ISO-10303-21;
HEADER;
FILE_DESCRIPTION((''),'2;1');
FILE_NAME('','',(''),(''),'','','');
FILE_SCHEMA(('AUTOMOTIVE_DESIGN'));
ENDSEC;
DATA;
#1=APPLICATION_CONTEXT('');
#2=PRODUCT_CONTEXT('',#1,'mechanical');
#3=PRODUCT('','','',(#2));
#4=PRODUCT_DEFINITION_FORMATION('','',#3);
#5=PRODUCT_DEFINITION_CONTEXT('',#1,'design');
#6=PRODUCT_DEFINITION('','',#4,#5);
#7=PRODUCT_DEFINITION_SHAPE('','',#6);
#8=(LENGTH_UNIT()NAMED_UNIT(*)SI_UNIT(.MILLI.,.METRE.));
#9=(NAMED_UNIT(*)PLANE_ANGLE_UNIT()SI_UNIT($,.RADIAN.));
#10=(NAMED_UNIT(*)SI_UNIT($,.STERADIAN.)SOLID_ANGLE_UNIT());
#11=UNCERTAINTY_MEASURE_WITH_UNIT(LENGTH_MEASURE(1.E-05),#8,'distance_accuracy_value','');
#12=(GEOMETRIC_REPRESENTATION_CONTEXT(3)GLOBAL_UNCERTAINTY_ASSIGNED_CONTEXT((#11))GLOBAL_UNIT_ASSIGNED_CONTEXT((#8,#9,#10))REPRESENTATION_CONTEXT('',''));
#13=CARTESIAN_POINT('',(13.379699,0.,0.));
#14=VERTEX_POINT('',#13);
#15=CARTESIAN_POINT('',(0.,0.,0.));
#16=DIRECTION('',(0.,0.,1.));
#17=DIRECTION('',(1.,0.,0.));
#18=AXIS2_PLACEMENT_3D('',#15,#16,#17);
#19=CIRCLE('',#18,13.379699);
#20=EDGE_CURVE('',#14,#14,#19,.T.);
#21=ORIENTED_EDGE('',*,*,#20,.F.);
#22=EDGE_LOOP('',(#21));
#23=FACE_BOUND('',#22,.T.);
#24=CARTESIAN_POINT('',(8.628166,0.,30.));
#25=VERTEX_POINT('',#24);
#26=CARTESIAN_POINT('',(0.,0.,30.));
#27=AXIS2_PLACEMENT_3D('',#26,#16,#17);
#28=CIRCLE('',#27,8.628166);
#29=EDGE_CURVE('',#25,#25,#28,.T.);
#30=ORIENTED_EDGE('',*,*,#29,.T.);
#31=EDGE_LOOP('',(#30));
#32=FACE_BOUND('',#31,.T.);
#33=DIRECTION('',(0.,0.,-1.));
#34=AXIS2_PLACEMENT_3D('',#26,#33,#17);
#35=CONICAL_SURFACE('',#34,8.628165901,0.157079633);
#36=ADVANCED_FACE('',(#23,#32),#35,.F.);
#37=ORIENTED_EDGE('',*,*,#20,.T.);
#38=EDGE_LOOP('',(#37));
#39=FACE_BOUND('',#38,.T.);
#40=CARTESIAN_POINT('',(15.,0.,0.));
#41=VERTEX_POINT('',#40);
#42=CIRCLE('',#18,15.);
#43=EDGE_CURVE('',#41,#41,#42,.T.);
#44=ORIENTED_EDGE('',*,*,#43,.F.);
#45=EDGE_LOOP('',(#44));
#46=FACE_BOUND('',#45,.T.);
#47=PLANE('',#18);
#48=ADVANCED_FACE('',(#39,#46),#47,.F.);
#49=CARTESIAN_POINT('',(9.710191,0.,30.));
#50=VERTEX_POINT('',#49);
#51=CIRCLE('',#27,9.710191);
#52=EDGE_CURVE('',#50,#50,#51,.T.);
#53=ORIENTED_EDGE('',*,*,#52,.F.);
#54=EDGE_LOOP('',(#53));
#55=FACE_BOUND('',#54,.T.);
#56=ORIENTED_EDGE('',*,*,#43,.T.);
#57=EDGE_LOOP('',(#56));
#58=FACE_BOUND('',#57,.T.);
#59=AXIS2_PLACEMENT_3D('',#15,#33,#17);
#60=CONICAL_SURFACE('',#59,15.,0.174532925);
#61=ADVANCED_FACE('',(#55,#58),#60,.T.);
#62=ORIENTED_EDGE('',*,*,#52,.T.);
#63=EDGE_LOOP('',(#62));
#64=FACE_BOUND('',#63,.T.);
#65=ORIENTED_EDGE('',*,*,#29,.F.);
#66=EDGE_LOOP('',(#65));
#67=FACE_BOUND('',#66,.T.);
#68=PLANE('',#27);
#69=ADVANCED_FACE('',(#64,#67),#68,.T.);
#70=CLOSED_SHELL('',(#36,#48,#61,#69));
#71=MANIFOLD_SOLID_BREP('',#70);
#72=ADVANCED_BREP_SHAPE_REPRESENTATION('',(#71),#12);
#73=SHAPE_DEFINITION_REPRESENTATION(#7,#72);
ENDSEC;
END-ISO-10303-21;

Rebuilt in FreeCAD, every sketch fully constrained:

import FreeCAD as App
import Part
import Sketcher

V = App.Vector

doc = App.newDocument("Part")
params = doc.addObject("Spreadsheet::Sheet", "Params")
for row, (alias, value) in enumerate([
    ("sketch1_diameter", "30 mm"),
    ("pad1_length", "30 mm"),
    ("pad1_taper", "-10 deg"),
    ("pocket1_length", "30 mm"),
    ("pocket1_taper", "9 deg"),
], start=1):
    params.set(f"A{row}", alias)
    params.set(f"B{row}", "=" + value)
    params.setAlias(f"B{row}", alias)

body = doc.addObject("PartDesign::Body", "Body")

# Sketch on XY plane
sketch1 = doc.addObject("Sketcher::SketchObject", "Sketch")
body.addObject(sketch1)
sketch1.AttachmentSupport = (doc.XY_Plane, [""])
sketch1.MapMode = "FlatFace"
sketch1.addGeometry(Part.Circle(V(0, 0, 0), V(0, 0, 1), 15), False)
sketch1.addConstraint([
    Sketcher.Constraint("Coincident", 0, 3, -1, 1),
    Sketcher.Constraint("Diameter", 0, 30.0),
])
sketch1.setExpression("Constraints[1]", "Params.sketch1_diameter")
pad1 = doc.addObject("PartDesign::Pad", "Pad")
body.addObject(pad1)
pad1.Profile = sketch1
pad1.setExpression("Length", "Params.pad1_length")
pad1.setExpression("TaperAngle", "Params.pad1_taper")

# Sketch on XY plane
sketch2 = doc.addObject("Sketcher::SketchObject", "Sketch001")
body.addObject(sketch2)
sketch2.AttachmentSupport = (doc.XY_Plane, [""])
sketch2.MapMode = "FlatFace"
sketch2.AttachmentOffset = App.Placement(V(0, 0, 30), App.Rotation())
sketch2.addGeometry(Part.Circle(V(0, 0, 0), V(0, 0, 1), 9), False)
sketch2.addConstraint([
    Sketcher.Constraint("Coincident", 0, 3, -1, 1),
    Sketcher.Constraint("Diameter", 0, 17.256332),
])
pocket1 = doc.addObject("PartDesign::Pocket", "Pocket")
body.addObject(pocket1)
pocket1.Profile = sketch2
pocket1.setExpression("Length", "Params.pocket1_length")
pocket1.setExpression("TaperAngle", "Params.pocket1_taper")

doc.recompute()
